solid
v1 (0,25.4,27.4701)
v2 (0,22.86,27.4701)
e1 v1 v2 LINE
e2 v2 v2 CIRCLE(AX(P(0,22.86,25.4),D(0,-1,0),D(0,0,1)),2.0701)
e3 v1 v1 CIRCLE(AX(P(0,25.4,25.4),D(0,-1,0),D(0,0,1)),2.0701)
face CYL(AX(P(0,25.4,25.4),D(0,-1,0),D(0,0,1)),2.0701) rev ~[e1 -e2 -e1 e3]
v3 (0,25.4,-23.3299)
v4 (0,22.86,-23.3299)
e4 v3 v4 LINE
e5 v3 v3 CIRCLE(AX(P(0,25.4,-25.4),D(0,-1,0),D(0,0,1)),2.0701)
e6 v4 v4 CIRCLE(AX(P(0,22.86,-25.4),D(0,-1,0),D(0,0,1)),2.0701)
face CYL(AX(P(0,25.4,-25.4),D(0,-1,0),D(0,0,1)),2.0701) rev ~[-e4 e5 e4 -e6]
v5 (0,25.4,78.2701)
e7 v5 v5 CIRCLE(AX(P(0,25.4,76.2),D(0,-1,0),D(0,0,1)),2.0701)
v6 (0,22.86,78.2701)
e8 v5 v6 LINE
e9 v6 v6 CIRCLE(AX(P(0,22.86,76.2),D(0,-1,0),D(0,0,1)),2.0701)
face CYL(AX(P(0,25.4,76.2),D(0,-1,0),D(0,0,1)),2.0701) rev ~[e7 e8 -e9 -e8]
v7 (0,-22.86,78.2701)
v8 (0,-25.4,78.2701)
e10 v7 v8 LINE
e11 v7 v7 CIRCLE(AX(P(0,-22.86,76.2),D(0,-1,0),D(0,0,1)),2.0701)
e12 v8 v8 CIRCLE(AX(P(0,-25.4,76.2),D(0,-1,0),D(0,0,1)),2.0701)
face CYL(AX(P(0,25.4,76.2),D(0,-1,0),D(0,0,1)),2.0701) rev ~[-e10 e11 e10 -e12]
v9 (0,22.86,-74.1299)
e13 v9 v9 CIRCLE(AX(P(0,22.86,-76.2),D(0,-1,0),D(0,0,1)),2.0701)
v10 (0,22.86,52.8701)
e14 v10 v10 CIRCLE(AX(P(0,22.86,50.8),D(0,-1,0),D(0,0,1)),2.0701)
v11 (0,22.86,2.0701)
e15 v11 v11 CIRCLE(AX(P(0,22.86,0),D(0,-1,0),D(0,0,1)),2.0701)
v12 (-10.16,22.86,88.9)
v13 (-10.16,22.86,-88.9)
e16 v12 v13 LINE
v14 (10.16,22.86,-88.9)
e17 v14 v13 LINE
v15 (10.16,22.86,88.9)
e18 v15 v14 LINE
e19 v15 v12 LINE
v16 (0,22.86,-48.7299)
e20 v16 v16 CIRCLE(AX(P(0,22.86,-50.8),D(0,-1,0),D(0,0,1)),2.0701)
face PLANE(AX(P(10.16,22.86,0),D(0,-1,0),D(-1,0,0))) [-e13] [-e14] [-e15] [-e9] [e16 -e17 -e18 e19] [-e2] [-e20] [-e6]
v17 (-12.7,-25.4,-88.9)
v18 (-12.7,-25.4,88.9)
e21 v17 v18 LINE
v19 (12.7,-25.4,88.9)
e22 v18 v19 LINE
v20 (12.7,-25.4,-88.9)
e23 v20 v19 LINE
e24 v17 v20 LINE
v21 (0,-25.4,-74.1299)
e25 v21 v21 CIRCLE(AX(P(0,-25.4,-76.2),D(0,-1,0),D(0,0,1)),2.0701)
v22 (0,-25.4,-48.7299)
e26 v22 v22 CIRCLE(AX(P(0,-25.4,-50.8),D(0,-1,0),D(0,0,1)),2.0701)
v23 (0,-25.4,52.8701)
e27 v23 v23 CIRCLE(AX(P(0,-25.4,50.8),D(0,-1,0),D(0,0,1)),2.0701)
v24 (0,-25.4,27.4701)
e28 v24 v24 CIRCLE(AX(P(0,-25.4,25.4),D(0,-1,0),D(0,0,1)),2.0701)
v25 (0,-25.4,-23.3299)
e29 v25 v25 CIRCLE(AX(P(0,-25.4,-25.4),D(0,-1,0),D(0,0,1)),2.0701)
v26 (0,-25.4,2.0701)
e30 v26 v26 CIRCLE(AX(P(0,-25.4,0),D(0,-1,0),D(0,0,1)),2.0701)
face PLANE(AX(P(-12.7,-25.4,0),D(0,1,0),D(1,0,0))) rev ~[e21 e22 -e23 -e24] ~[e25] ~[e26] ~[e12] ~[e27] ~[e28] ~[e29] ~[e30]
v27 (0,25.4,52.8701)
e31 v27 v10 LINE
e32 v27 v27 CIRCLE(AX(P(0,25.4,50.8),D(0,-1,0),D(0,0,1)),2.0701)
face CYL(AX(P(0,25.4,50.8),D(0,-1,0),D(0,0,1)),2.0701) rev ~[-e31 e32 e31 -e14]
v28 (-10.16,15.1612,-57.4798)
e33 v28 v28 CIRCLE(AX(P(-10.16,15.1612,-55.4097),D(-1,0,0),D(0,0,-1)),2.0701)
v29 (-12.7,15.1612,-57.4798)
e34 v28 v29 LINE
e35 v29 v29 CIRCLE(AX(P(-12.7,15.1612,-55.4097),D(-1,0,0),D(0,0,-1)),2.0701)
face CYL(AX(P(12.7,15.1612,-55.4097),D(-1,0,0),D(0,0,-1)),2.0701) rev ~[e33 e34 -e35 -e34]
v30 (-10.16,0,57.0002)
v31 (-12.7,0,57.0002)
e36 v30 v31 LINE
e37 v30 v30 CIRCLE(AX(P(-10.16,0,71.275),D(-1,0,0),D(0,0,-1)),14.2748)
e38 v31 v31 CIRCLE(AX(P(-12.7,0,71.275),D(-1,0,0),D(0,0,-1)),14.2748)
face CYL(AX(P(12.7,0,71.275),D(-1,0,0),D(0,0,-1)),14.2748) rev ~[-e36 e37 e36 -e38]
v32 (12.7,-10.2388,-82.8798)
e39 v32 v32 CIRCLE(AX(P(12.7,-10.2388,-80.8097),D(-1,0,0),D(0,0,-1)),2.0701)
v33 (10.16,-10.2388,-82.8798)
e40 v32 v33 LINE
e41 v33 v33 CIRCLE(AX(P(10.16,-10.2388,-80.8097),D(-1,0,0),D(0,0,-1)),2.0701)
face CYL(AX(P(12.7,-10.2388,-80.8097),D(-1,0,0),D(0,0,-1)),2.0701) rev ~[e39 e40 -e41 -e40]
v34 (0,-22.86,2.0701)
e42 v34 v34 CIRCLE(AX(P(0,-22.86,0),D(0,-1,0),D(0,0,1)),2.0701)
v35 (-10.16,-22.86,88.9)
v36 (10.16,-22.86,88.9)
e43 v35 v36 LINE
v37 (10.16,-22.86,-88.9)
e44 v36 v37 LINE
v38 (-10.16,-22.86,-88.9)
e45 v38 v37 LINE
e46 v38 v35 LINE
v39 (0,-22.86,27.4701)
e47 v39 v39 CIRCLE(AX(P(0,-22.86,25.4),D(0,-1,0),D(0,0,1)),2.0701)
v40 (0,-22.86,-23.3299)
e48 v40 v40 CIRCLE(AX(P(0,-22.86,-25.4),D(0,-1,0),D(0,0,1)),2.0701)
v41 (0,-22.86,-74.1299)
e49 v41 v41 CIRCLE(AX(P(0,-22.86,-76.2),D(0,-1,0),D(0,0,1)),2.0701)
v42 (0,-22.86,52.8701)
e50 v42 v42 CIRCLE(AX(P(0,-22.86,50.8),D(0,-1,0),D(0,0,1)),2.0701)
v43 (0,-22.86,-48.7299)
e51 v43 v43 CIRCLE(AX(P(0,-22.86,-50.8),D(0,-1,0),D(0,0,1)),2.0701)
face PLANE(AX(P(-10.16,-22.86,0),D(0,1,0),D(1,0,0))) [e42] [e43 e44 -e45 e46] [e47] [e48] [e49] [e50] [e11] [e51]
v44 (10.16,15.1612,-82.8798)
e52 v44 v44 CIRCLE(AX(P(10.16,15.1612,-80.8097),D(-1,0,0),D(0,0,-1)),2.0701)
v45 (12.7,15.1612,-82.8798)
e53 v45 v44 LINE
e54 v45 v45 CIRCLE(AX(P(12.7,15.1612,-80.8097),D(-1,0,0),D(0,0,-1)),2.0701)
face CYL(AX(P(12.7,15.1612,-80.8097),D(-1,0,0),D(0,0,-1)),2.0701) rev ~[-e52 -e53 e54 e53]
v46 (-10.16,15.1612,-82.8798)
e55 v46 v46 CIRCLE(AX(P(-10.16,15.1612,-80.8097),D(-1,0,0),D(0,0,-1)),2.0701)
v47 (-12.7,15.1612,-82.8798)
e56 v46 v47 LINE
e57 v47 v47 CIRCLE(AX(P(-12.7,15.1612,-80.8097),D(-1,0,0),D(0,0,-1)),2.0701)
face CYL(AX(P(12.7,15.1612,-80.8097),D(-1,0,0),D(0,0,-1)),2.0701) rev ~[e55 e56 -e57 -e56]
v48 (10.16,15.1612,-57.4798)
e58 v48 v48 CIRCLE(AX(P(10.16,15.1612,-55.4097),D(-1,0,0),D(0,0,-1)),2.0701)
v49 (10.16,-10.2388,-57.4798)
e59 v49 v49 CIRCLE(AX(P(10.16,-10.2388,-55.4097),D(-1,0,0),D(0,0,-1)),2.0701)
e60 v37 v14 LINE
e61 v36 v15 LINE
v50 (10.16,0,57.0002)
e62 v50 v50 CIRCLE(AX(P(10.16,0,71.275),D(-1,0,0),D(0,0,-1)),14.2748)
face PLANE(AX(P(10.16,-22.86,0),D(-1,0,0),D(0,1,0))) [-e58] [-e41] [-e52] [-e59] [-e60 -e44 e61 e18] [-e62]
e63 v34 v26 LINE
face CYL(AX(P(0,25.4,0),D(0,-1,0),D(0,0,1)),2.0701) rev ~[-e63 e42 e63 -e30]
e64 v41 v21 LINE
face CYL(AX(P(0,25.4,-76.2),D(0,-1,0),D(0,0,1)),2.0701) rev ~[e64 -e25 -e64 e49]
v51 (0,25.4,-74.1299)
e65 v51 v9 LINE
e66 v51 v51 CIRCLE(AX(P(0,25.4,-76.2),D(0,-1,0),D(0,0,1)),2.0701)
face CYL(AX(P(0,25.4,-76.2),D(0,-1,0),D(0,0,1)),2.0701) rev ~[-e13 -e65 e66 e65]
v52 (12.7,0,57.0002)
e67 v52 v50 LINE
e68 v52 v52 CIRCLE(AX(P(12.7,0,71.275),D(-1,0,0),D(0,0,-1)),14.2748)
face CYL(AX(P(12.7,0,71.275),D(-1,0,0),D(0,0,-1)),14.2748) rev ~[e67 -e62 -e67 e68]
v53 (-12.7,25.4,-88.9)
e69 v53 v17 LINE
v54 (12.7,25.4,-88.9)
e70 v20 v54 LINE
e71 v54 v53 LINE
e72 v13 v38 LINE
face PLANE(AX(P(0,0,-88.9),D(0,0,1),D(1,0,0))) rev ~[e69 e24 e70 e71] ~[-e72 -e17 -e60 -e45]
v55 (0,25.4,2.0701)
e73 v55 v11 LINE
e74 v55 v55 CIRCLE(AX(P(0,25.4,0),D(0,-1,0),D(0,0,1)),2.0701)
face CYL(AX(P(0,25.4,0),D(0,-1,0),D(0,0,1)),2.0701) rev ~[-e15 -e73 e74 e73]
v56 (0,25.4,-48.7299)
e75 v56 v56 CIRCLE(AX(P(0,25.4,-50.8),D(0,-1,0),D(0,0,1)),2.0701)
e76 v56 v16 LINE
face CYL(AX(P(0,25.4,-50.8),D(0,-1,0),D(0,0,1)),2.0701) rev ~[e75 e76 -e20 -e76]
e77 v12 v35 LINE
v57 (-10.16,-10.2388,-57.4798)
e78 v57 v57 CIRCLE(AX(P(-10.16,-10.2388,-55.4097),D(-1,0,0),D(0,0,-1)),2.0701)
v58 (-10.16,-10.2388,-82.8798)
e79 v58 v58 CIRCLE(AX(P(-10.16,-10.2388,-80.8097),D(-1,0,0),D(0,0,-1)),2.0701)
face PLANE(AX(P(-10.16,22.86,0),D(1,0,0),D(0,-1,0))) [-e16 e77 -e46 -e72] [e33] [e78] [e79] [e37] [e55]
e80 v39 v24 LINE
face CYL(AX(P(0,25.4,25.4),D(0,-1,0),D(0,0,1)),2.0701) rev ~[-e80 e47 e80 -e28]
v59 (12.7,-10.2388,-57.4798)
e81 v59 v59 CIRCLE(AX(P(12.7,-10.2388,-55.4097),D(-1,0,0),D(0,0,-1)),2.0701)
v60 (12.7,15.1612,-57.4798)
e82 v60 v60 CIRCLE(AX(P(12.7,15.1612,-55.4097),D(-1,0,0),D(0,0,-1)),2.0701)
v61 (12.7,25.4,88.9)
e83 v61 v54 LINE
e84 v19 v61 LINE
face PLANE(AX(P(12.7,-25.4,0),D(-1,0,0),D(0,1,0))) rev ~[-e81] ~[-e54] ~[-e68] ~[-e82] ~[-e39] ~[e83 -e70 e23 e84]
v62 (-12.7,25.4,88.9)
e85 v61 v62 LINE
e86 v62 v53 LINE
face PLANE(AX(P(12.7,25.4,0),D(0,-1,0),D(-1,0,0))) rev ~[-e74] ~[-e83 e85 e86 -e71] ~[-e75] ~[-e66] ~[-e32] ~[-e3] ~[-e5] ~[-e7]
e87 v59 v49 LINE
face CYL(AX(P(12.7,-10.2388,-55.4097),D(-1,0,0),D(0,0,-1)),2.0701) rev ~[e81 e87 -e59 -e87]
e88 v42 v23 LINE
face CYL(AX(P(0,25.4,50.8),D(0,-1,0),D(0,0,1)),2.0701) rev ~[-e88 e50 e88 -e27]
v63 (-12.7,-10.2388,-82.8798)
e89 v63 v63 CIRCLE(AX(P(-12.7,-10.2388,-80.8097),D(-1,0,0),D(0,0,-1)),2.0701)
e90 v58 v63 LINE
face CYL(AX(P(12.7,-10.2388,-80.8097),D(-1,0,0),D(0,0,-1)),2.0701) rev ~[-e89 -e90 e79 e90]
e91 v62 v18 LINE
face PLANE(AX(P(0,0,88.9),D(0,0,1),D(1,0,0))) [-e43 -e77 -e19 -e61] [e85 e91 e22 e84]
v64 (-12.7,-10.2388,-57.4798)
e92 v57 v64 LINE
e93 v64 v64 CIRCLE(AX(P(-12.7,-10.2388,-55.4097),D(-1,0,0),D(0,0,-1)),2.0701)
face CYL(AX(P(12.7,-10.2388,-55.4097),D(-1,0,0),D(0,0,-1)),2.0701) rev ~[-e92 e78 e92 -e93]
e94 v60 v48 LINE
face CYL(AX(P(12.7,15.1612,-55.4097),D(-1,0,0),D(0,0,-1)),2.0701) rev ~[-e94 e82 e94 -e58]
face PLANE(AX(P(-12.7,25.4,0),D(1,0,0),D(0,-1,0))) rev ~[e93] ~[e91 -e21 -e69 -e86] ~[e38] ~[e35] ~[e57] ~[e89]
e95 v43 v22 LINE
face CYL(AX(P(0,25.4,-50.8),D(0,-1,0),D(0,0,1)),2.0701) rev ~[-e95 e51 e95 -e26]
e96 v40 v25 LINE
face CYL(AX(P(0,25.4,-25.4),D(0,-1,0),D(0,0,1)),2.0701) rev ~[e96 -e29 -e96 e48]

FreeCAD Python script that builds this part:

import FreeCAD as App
import Part
import Sketcher
from FreeCAD import Vector
Q = App.Units.Quantity


def add_polygon(sketch, points):
    """Adds a closed chain of lines whose ends are joined by coincident constraints."""
    first, n = sketch.GeometryCount, len(points)
    for a, b in zip(points, points[1:] + points[:1]):
        sketch.addGeometry(Part.LineSegment(App.Vector(*a, 0), App.Vector(*b, 0)), False)
    for i in range(n):
        sketch.addConstraint(Sketcher.Constraint("Coincident", first + i, 2, first + (i + 1) % n, 1))

doc = App.newDocument("Part")
params = doc.addObject("Spreadsheet::Sheet", "Params")
for row, (alias, value) in enumerate([
    ("sketch1_width", "1 in"),
    ("sketch1_height", "2 in"),
    ("sketch1_width2", "0.8 in"),
    ("sketch1_height2", "1.8 in"),
    ("pad1_length", "7 in"),
    ("sketch2_diameter", "0.163 in"),
    ("hole_diameter", "0.163 in"),
    ("linearpattern_pitch", "1 in"),
    ("sketch3_diameter", "1.124 in"),
    ("hole2_diameter", "1.124 in"),
    ("sketch4_diameter", "0.163 in"),
    ("hole3_diameter", "0.163 in"),
], start=1):
    params.set(f"A{row}", alias)
    params.set(f"B{row}", "=" + value)
    params.setAlias(f"B{row}", alias)

body = doc.addObject("PartDesign::Body", "Body")

sketch1 = doc.addObject("Sketcher::SketchObject", "Sketch")
body.addObject(sketch1)
sketch1.AttachmentSupport = (doc.XY_Plane, [""])
sketch1.MapMode = "FlatFace"
add_polygon(sketch1, [(-12.7, 25.4), (-12.7, -25.4), (12.7, -25.4), (12.7, 25.4)])
add_polygon(sketch1, [(10.16, -22.86), (-10.16, -22.86), (-10.16, 22.86), (10.16, 22.86)])
sketch1.addConstraint(Sketcher.Constraint("Vertical", 0))
sketch1.addConstraint(Sketcher.Constraint("Horizontal", 1))
sketch1.addConstraint(Sketcher.Constraint("Vertical", 2))
sketch1.addConstraint(Sketcher.Constraint("Horizontal", 3))
sketch1.addConstraint(Sketcher.Constraint("Horizontal", 4))
sketch1.addConstraint(Sketcher.Constraint("Vertical", 5))
sketch1.addConstraint(Sketcher.Constraint("Horizontal", 6))
sketch1.addConstraint(Sketcher.Constraint("Vertical", 7))
sketch1.addConstraint(Sketcher.Constraint("Symmetric", 0, 2, 2, 2, -1, 1))
sketch1.addConstraint(Sketcher.Constraint("Symmetric", 4, 2, 6, 2, -1, 1))
sketch1.addConstraint(Sketcher.Constraint("DistanceX", 1, 1, 1, 2, Q("1 in")))
sketch1.addConstraint(Sketcher.Constraint("DistanceY", 0, 2, 0, 1, Q("2 in")))
sketch1.addConstraint(Sketcher.Constraint("DistanceX", 4, 2, 4, 1, Q("0.8 in")))
sketch1.addConstraint(Sketcher.Constraint("DistanceY", 5, 1, 5, 2, Q("1.8 in")))
sketch1.setExpression("Constraints[18]", "Params.sketch1_width")
sketch1.setExpression("Constraints[19]", "Params.sketch1_height")
sketch1.setExpression("Constraints[20]", "Params.sketch1_width2")
sketch1.setExpression("Constraints[21]", "Params.sketch1_height2")
pad1 = doc.addObject("PartDesign::Pad", "Pad")
body.addObject(pad1)
pad1.Profile = sketch1
pad1.setExpression("Length", "Params.pad1_length")
pad1.Midplane = True

sketch2 = doc.addObject("Sketcher::SketchObject", "Sketch001")
body.addObject(sketch2)
sketch2.AttachmentSupport = (doc.XZ_Plane, [""])
sketch2.MapMode = "FlatFace"
sketch2.AttachmentOffset = App.Placement(Vector(0, 0, -1 * 25.4), App.Rotation())
sketch2.addGeometry(Part.Circle(Vector(0, 76.2, 0), Vector(0, 0, 1), 2.0701), False)
sketch2.addConstraint(Sketcher.Constraint("PointOnObject", 0, 3, -2))
sketch2.addConstraint(Sketcher.Constraint("Diameter", 0, Q("0.163 in")))
sketch2.addConstraint(Sketcher.Constraint("DistanceY", -1, 1, 0, 3, Q("3 in")))
sketch2.setExpression("Constraints[1]", "Params.sketch2_diameter")
doc.recompute()
hole = doc.addObject("PartDesign::Hole", "Hole")
body.addObject(hole)
hole.Profile = sketch2
hole.ThreadType = "None"
hole.setExpression("Diameter", "Params.hole_diameter")
hole.DepthType = "ThroughAll"
hole.Reversed = True
doc.recompute()

linearpattern = doc.addObject("PartDesign::LinearPattern", "LinearPattern")
body.addObject(linearpattern)
linearpattern.Originals = [hole]
linearpattern.Direction = (doc.Z_Axis, [""])
linearpattern.Mode = "offset"
linearpattern.setExpression("Offset", "Params.linearpattern_pitch")
linearpattern.Occurrences = 7
linearpattern.Reversed = True
body.Tip = linearpattern

sketch3 = doc.addObject("Sketcher::SketchObject", "Sketch002")
body.addObject(sketch3)
sketch3.AttachmentSupport = (doc.YZ_Plane, [""])
sketch3.MapMode = "FlatFace"
sketch3.AttachmentOffset = App.Placement(Vector(0, 0, 0.5 * 25.4), App.Rotation())
sketch3.addGeometry(Part.Circle(Vector(0, 71.275, 0), Vector(0, 0, 1), 14.2748), False)
sketch3.addConstraint(Sketcher.Constraint("PointOnObject", 0, 3, -2))
sketch3.addConstraint(Sketcher.Constraint("Diameter", 0, Q("1.124 in")))
sketch3.addConstraint(Sketcher.Constraint("DistanceY", -1, 1, 0, 3, Q("2.8061 in")))
sketch3.setExpression("Constraints[1]", "Params.sketch3_diameter")
doc.recompute()
hole2 = doc.addObject("PartDesign::Hole", "Hole001")
body.addObject(hole2)
hole2.Profile = sketch3
hole2.ThreadType = "None"
hole2.setExpression("Diameter", "Params.hole2_diameter")
hole2.DepthType = "ThroughAll"

sketch4 = doc.addObject("Sketcher::SketchObject", "Sketch003")
body.addObject(sketch4)
sketch4.AttachmentSupport = (doc.YZ_Plane, [""])
sketch4.MapMode = "FlatFace"
sketch4.AttachmentOffset = App.Placement(Vector(0, 0, 0.5 * 25.4), App.Rotation())
sketch4.addGeometry(Part.Circle(Vector(15.1612, -55.4097, 0), Vector(0, 0, 1), 2.0701), False)
sketch4.addGeometry(Part.Circle(Vector(15.1612, -80.8097, 0), Vector(0, 0, 1), 2.0701), False)
sketch4.addGeometry(Part.Circle(Vector(-10.2388, -80.8097, 0), Vector(0, 0, 1), 2.0701), False)
sketch4.addGeometry(Part.Circle(Vector(-10.2388, -55.4097, 0), Vector(0, 0, 1), 2.0701), False)
sketch4.addConstraint(Sketcher.Constraint("Equal", 0, 1))
sketch4.addConstraint(Sketcher.Constraint("Equal", 1, 2))
sketch4.addConstraint(Sketcher.Constraint("Equal", 2, 3))
sketch4.addConstraint(Sketcher.Constraint("Horizontal", 1, 3, 2, 3))
sketch4.addConstraint(Sketcher.Constraint("Horizontal", 0, 3, 3, 3))
sketch4.addConstraint(Sketcher.Constraint("Vertical", 0, 3, 1, 3))
sketch4.addConstraint(Sketcher.Constraint("Vertical", 2, 3, 3, 3))
sketch4.addConstraint(Sketcher.Constraint("Diameter", 0, Q("0.163 in")))
sketch4.addConstraint(Sketcher.Constraint("DistanceY", 1, 3, 0, 3, Q("1 in")))
sketch4.addConstraint(Sketcher.Constraint("DistanceX", 2, 3, 1, 3, Q("1 in")))
sketch4.addConstraint(Sketcher.Constraint("DistanceX", -1, 1, 0, 3, Q("0.5969 in")))
sketch4.addConstraint(Sketcher.Constraint("DistanceY", 0, 3, -1, 1, 55.4097))
sketch4.setExpression("Constraints[7]", "Params.sketch4_diameter")
doc.recompute()
hole3 = doc.addObject("PartDesign::Hole", "Hole002")
body.addObject(hole3)
hole3.Profile = sketch4
hole3.ThreadType = "None"
hole3.setExpression("Diameter", "Params.hole3_diameter")
hole3.DepthType = "ThroughAll"

doc.recompute()
